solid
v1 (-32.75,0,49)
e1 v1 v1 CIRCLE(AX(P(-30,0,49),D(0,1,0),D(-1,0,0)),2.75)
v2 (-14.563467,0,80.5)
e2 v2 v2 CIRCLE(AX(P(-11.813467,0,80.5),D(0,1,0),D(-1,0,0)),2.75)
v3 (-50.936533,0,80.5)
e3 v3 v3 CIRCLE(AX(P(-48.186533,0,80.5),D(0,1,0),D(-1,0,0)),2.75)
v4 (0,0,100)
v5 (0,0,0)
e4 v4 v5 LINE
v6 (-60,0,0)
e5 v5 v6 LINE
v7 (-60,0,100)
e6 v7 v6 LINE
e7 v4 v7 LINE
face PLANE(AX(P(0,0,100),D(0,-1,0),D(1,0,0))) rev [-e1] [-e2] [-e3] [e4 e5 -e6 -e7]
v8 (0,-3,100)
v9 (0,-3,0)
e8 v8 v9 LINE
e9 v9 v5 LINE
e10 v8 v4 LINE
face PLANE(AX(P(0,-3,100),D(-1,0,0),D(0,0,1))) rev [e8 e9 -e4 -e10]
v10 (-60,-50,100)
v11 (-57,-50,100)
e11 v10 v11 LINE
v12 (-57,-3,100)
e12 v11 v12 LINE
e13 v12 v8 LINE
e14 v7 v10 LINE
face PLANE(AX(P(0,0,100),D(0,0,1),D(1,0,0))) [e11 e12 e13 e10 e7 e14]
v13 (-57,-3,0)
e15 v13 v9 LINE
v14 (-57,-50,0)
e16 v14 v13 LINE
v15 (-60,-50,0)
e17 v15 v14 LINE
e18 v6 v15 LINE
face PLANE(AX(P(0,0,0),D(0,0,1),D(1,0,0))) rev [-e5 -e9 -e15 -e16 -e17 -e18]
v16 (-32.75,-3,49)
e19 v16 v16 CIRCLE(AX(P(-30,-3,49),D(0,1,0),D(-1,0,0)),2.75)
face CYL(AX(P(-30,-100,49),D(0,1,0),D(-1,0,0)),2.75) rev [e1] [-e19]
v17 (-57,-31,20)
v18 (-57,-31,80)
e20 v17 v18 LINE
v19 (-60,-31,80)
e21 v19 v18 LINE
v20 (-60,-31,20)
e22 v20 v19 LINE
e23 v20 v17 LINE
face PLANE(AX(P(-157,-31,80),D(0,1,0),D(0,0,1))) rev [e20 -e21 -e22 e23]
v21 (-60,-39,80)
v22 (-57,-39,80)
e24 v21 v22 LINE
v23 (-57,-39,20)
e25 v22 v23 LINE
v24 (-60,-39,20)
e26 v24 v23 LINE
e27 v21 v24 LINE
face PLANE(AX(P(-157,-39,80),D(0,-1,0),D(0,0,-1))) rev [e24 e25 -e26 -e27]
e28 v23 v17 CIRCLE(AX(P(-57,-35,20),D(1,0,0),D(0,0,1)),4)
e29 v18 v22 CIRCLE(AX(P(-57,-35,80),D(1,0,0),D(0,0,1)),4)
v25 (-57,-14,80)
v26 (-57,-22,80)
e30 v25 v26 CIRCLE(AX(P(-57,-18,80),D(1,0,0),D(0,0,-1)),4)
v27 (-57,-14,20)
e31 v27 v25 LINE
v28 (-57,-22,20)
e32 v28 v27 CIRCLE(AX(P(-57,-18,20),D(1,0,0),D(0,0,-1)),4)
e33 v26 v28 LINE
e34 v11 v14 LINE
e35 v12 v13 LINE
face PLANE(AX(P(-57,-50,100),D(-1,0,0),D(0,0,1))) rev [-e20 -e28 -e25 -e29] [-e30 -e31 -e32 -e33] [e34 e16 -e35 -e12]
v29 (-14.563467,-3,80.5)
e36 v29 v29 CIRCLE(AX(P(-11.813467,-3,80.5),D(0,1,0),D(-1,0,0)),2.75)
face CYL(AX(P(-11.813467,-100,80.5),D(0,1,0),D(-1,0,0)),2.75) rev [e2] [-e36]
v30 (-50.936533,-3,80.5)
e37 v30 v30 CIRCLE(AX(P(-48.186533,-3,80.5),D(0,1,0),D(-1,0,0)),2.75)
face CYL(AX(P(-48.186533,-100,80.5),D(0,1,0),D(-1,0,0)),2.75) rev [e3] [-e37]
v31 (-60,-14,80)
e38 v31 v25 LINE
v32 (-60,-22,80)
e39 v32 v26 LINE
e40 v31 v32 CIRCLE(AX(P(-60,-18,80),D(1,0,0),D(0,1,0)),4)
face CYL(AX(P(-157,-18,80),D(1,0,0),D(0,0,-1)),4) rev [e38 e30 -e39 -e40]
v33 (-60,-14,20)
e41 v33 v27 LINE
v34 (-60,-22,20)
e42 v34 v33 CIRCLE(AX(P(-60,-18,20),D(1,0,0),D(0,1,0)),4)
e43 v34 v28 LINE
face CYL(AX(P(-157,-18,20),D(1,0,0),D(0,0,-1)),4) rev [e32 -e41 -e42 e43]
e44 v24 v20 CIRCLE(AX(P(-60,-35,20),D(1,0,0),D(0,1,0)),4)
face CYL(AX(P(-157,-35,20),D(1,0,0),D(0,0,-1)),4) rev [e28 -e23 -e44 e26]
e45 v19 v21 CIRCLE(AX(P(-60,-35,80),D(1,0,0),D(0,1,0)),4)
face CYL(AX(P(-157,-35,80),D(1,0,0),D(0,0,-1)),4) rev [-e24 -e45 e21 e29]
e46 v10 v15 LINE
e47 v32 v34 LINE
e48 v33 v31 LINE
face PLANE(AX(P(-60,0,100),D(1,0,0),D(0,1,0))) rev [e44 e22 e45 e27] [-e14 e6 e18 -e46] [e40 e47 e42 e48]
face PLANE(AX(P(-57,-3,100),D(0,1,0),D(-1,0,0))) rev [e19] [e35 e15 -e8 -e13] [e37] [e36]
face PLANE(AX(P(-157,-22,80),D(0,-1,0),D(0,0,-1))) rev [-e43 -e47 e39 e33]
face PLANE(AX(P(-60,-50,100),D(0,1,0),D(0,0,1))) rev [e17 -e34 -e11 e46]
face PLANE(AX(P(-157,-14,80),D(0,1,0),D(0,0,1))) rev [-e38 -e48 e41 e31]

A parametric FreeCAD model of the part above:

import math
import FreeCAD as App
import Part
import Sketcher
Q = App.Units.Quantity

doc = App.newDocument("Part")
params = doc.addObject("Spreadsheet::Sheet", "Params")
for row, (alias, value) in enumerate([
    ("sketch1_width", "60 mm"),
    ("sketch1_width2", "3 mm"),
    ("sketch1_height", "50 mm"),
    ("pad1_length", "100 mm"),
    ("sketch2_diameter", "5.5 mm"),
    ("pocket1_length", "100 mm"),
    ("sketch3_radius", "4 mm"),
    ("sketch3_height", "60 mm"),
    ("pocket2_length", "100 mm"),
], start=1):
    params.set(f"A{row}", alias)
    params.set(f"B{row}", "=" + value)
    params.setAlias(f"B{row}", alias)

body = doc.addObject("PartDesign::Body", "Body")

# Sketch on XY plane
sketch1 = body.newObject("Sketcher::SketchObject", "Sketch")
sketch1.AttachmentSupport = (doc.getObject("XY_Plane"), [""])
sketch1.MapMode = "FlatFace"
sketch1.addGeometry(Part.LineSegment(App.Vector(0, 0, 0), App.Vector(-60, 0, 0)), False)
sketch1.addGeometry(Part.LineSegment(App.Vector(-60, 0, 0), App.Vector(-60, -50, 0)), False)
sketch1.addGeometry(Part.LineSegment(App.Vector(-60, -50, 0), App.Vector(-57, -50, 0)), False)
sketch1.addGeometry(Part.LineSegment(App.Vector(-57, -50, 0), App.Vector(-57, -3, 0)), False)
sketch1.addGeometry(Part.LineSegment(App.Vector(-57, -3, 0), App.Vector(0, -3, 0)), False)
sketch1.addGeometry(Part.LineSegment(App.Vector(0, -3, 0), App.Vector(0, 0, 0)), False)
sketch1.addConstraint(Sketcher.Constraint("Coincident", 0, 2, 1, 1))
sketch1.addConstraint(Sketcher.Constraint("Coincident", 1, 2, 2, 1))
sketch1.addConstraint(Sketcher.Constraint("Coincident", 2, 2, 3, 1))
sketch1.addConstraint(Sketcher.Constraint("Coincident", 3, 2, 4, 1))
sketch1.addConstraint(Sketcher.Constraint("Coincident", 4, 2, 5, 1))
sketch1.addConstraint(Sketcher.Constraint("Coincident", 5, 2, 0, 1))
sketch1.addConstraint(Sketcher.Constraint("Horizontal", 0))
sketch1.addConstraint(Sketcher.Constraint("Vertical", 1))
sketch1.addConstraint(Sketcher.Constraint("Horizontal", 2))
sketch1.addConstraint(Sketcher.Constraint("Vertical", 3))
sketch1.addConstraint(Sketcher.Constraint("Horizontal", 4))
sketch1.addConstraint(Sketcher.Constraint("Vertical", 5))
sketch1.addConstraint(Sketcher.Constraint("Coincident", 5, 2, -1, 1))
sketch1.addConstraint(Sketcher.Constraint("Equal", 2, 5))
sketch1.addConstraint(Sketcher.Constraint("DistanceX", 0, 2, 0, 1, Q("60 mm")))
sketch1.addConstraint(Sketcher.Constraint("DistanceX", 2, 1, 2, 2, Q("3 mm")))
sketch1.addConstraint(Sketcher.Constraint("DistanceY", 1, 2, 1, 1, Q("50 mm")))
sketch1.setExpression("Constraints[14]", "Params.sketch1_width")
sketch1.setExpression("Constraints[15]", "Params.sketch1_width2")
sketch1.setExpression("Constraints[16]", "Params.sketch1_height")
pad1 = body.newObject("PartDesign::Pad", "Pad")
pad1.Profile = sketch1
pad1.setExpression("Length", "Params.pad1_length")

# Sketch on XZ plane
sketch2 = body.newObject("Sketcher::SketchObject", "Sketch001")
sketch2.AttachmentSupport = (doc.getObject("XZ_Plane"), [""])
sketch2.MapMode = "FlatFace"
sketch2.addGeometry(Part.Circle(App.Vector(-11.813467, 80.5, 0), App.Vector(0, 0, 1), 2.75), False)
sketch2.addGeometry(Part.Circle(App.Vector(-48.186533, 80.5, 0), App.Vector(0, 0, 1), 2.75), False)
sketch2.addGeometry(Part.Circle(App.Vector(-30, 49, 0), App.Vector(0, 0, 1), 2.75), False)
sketch2.addConstraint(Sketcher.Constraint("Equal", 0, 1))
sketch2.addConstraint(Sketcher.Constraint("Equal", 1, 2))
sketch2.addConstraint(Sketcher.Constraint("Horizontal", 0, 3, 1, 3))
sketch2.addConstraint(Sketcher.Constraint("Diameter", 0, Q("5.5 mm")))
sketch2.addConstraint(Sketcher.Constraint("DistanceX", 2, 3, -1, 1, Q("30 mm")))
sketch2.addConstraint(Sketcher.Constraint("DistanceY", -1, 1, 2, 3, Q("49 mm")))
sketch2.addConstraint(Sketcher.Constraint("DistanceY", -1, 1, 0, 3, Q("80.5 mm")))
sketch2.addConstraint(Sketcher.Constraint("DistanceX", 0, 3, -1, 1, Q("11.813467 mm")))
sketch2.addConstraint(Sketcher.Constraint("DistanceX", 1, 3, -1, 1, Q("48.186533 mm")))
sketch2.setExpression("Constraints[3]", "Params.sketch2_diameter")
pocket1 = body.newObject("PartDesign::Pocket", "Pocket")
pocket1.Profile = sketch2
pocket1.setExpression("Length", "Params.pocket1_length")
pocket1.Reversed = True

# Sketch on YZ plane
sketch3 = body.newObject("Sketcher::SketchObject", "Sketch002")
sketch3.AttachmentSupport = (doc.getObject("YZ_Plane"), [""])
sketch3.MapMode = "FlatFace"
sketch3.AttachmentOffset = App.Placement(App.Vector(0, 0, -57), App.Rotation())
sketch3.addGeometry(Part.LineSegment(App.Vector(-14, 20, 0), App.Vector(-14, 80, 0)), False)
sketch3.addGeometry(Part.ArcOfCircle(Part.Circle(App.Vector(-18, 80, 0), App.Vector(0, 0, 1), 4), math.radians(0), math.radians(180)), False)
sketch3.addGeometry(Part.LineSegment(App.Vector(-22, 80, 0), App.Vector(-22, 20, 0)), False)
sketch3.addGeometry(Part.ArcOfCircle(Part.Circle(App.Vector(-18, 20, 0), App.Vector(0, 0, 1), 4), math.radians(180), math.radians(360)), False)
sketch3.addGeometry(Part.LineSegment(App.Vector(-39, 80, 0), App.Vector(-39, 20, 0)), False)
sketch3.addGeometry(Part.ArcOfCircle(Part.Circle(App.Vector(-35, 20, 0), App.Vector(0, 0, 1), 4), math.radians(180), math.radians(360)), False)
sketch3.addGeometry(Part.LineSegment(App.Vector(-31, 20, 0), App.Vector(-31, 80, 0)), False)
sketch3.addGeometry(Part.ArcOfCircle(Part.Circle(App.Vector(-35, 80, 0), App.Vector(0, 0, 1), 4), math.radians(0), math.radians(180)), False)
sketch3.addConstraint(Sketcher.Constraint("Tangent", 0, 2, 1, 1))
sketch3.addConstraint(Sketcher.Constraint("Tangent", 1, 2, 2, 1))
sketch3.addConstraint(Sketcher.Constraint("Tangent", 2, 2, 3, 1))
sketch3.addConstraint(Sketcher.Constraint("Tangent", 3, 2, 0, 1))
sketch3.addConstraint(Sketcher.Constraint("Tangent", 4, 2, 5, 1))
sketch3.addConstraint(Sketcher.Constraint("Tangent", 5, 2, 6, 1))
sketch3.addConstraint(Sketcher.Constraint("Tangent", 6, 2, 7, 1))
sketch3.addConstraint(Sketcher.Constraint("Tangent", 7, 2, 4, 1))
sketch3.addConstraint(Sketcher.Constraint("Vertical", 0))
sketch3.addConstraint(Sketcher.Constraint("Vertical", 2))
sketch3.addConstraint(Sketcher.Constraint("Vertical", 4))
sketch3.addConstraint(Sketcher.Constraint("Vertical", 6))
sketch3.addConstraint(Sketcher.Constraint("Equal", 3, 5))
sketch3.addConstraint(Sketcher.Constraint("Horizontal", 3, 3, 5, 3))
sketch3.addConstraint(Sketcher.Constraint("Horizontal", 1, 3, 7, 3))
sketch3.addConstraint(Sketcher.Constraint("Radius", 1, Q("4 mm")))
sketch3.addConstraint(Sketcher.Constraint("DistanceY", 0, 1, 0, 2, Q("60 mm")))
sketch3.addConstraint(Sketcher.Constraint("DistanceX", 1, 3, -1, 1, Q("18 mm")))
sketch3.addConstraint(Sketcher.Constraint("DistanceY", -1, 1, 1, 3, Q("80 mm")))
sketch3.addConstraint(Sketcher.Constraint("DistanceX", 5, 3, -1, 1, Q("35 mm")))
sketch3.setExpression("Constraints[15]", "Params.sketch3_radius")
sketch3.setExpression("Constraints[16]", "Params.sketch3_height")
pocket2 = body.newObject("PartDesign::Pocket", "Pocket001")
pocket2.Profile = sketch3
pocket2.setExpression("Length", "Params.pocket2_length")

doc.recompute()
